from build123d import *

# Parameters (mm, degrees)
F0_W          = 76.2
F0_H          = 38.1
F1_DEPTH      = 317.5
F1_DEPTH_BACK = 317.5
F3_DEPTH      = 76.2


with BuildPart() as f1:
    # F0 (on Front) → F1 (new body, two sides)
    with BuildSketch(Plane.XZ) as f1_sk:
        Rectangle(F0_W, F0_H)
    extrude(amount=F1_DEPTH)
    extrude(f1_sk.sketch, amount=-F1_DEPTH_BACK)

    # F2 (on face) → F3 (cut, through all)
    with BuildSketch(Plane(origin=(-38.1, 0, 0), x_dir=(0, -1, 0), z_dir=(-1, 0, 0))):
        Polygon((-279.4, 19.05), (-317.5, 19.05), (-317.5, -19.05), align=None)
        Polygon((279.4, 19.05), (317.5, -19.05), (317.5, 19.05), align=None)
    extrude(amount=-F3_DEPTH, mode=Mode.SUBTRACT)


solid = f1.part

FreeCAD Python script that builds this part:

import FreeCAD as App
import Part
import Sketcher

V = App.Vector
Q = App.Units.Quantity


def add_polygon(sketch, points):
    """Adds a closed chain of lines whose ends are joined by coincident constraints."""
    first, n = sketch.GeometryCount, len(points)
    for a, b in zip(points, points[1:] + points[:1]):
        sketch.addGeometry(Part.LineSegment(App.Vector(*a, 0), App.Vector(*b, 0)), False)
    for i in range(n):
        sketch.addConstraint(Sketcher.Constraint("Coincident", first + i, 2, first + (i + 1) % n, 1))

doc = App.newDocument("Part")
params = doc.addObject("Spreadsheet::Sheet", "Params")
for row, (alias, value) in enumerate([
    ("sketch1_width", "3 in"),
    ("sketch1_height", "1.5 in"),
    ("pad1_length", "12.5 in"),
    ("pad1_length2", "12.5 in"),
    ("sketch2_width", "1.5 in"),
], start=1):
    params.set(f"A{row}", alias)
    params.set(f"B{row}", "=" + value)
    params.setAlias(f"B{row}", alias)

body = doc.addObject("PartDesign::Body", "Body")

# Sketch on XZ plane
sketch1 = body.newObject("Sketcher::SketchObject", "Sketch")
sketch1.AttachmentSupport = (doc.getObject("XZ_Plane"), [""])
sketch1.MapMode = "FlatFace"
add_polygon(sketch1, [(-38.1, 19.05), (-38.1, -19.05), (38.1, -19.05), (38.1, 19.05)])  # lines 0-3
sketch1.addConstraint([
    Sketcher.Constraint("Vertical", 0),
    Sketcher.Constraint("Horizontal", 1),
    Sketcher.Constraint("Vertical", 2),
    Sketcher.Constraint("Horizontal", 3),
    Sketcher.Constraint("Symmetric", 0, 2, 2, 2, -1, 1),
    Sketcher.Constraint("DistanceX", 1, 1, 1, 2, Q("3 in")),
    Sketcher.Constraint("DistanceY", 0, 2, 0, 1, Q("1.5 in")),
])
sketch1.setExpression("Constraints[9]", "Params.sketch1_width")
sketch1.setExpression("Constraints[10]", "Params.sketch1_height")
pad1 = body.newObject("PartDesign::Pad", "Pad")
pad1.Profile = sketch1
pad1.Type = "TwoLengths"
pad1.setExpression("Length", "Params.pad1_length")
pad1.setExpression("Length2", "Params.pad1_length2")

# Sketch on YZ plane
sketch2 = body.newObject("Sketcher::SketchObject", "Sketch001")
sketch2.AttachmentSupport = (doc.getObject("YZ_Plane"), [""])
sketch2.MapMode = "FlatFace"
sketch2.AttachmentOffset = App.Placement(V(0, 0, -1.5 * 25.4), App.Rotation())
add_polygon(sketch2, [(279.4, 19.05), (317.5, 19.05), (317.5, -19.05)])  # lines 0-2
add_polygon(sketch2, [(-279.4, 19.05), (-317.5, -19.05), (-317.5, 19.05)])  # lines 3-5
sketch2.addConstraint([
    Sketcher.Constraint("Horizontal", 0),
    Sketcher.Constraint("Vertical", 1),
    Sketcher.Constraint("Vertical", 4),
    Sketcher.Constraint("Horizontal", 5),
    Sketcher.Constraint("Symmetric", 0, 2, 3, 2, -1, 1),
    Sketcher.Constraint("Symmetric", 2, 2, 5, 2, -2),
    Sketcher.Constraint("Perpendicular", 2, 3),
    Sketcher.Constraint("Horizontal", 1, 2, 3, 2),
    Sketcher.Constraint("DistanceX", 0, 1, 0, 2, Q("1.5 in")),
    Sketcher.Constraint("DistanceX", -1, 1, 2, 2, Q("11 in")),
])
sketch2.setExpression("Constraints[14]", "Params.sketch2_width")
pocket1 = body.newObject("PartDesign::Pocket", "Pocket")
pocket1.Profile = sketch2
pocket1.Type = "ThroughAll"
pocket1.Reversed = True

doc.recompute()
